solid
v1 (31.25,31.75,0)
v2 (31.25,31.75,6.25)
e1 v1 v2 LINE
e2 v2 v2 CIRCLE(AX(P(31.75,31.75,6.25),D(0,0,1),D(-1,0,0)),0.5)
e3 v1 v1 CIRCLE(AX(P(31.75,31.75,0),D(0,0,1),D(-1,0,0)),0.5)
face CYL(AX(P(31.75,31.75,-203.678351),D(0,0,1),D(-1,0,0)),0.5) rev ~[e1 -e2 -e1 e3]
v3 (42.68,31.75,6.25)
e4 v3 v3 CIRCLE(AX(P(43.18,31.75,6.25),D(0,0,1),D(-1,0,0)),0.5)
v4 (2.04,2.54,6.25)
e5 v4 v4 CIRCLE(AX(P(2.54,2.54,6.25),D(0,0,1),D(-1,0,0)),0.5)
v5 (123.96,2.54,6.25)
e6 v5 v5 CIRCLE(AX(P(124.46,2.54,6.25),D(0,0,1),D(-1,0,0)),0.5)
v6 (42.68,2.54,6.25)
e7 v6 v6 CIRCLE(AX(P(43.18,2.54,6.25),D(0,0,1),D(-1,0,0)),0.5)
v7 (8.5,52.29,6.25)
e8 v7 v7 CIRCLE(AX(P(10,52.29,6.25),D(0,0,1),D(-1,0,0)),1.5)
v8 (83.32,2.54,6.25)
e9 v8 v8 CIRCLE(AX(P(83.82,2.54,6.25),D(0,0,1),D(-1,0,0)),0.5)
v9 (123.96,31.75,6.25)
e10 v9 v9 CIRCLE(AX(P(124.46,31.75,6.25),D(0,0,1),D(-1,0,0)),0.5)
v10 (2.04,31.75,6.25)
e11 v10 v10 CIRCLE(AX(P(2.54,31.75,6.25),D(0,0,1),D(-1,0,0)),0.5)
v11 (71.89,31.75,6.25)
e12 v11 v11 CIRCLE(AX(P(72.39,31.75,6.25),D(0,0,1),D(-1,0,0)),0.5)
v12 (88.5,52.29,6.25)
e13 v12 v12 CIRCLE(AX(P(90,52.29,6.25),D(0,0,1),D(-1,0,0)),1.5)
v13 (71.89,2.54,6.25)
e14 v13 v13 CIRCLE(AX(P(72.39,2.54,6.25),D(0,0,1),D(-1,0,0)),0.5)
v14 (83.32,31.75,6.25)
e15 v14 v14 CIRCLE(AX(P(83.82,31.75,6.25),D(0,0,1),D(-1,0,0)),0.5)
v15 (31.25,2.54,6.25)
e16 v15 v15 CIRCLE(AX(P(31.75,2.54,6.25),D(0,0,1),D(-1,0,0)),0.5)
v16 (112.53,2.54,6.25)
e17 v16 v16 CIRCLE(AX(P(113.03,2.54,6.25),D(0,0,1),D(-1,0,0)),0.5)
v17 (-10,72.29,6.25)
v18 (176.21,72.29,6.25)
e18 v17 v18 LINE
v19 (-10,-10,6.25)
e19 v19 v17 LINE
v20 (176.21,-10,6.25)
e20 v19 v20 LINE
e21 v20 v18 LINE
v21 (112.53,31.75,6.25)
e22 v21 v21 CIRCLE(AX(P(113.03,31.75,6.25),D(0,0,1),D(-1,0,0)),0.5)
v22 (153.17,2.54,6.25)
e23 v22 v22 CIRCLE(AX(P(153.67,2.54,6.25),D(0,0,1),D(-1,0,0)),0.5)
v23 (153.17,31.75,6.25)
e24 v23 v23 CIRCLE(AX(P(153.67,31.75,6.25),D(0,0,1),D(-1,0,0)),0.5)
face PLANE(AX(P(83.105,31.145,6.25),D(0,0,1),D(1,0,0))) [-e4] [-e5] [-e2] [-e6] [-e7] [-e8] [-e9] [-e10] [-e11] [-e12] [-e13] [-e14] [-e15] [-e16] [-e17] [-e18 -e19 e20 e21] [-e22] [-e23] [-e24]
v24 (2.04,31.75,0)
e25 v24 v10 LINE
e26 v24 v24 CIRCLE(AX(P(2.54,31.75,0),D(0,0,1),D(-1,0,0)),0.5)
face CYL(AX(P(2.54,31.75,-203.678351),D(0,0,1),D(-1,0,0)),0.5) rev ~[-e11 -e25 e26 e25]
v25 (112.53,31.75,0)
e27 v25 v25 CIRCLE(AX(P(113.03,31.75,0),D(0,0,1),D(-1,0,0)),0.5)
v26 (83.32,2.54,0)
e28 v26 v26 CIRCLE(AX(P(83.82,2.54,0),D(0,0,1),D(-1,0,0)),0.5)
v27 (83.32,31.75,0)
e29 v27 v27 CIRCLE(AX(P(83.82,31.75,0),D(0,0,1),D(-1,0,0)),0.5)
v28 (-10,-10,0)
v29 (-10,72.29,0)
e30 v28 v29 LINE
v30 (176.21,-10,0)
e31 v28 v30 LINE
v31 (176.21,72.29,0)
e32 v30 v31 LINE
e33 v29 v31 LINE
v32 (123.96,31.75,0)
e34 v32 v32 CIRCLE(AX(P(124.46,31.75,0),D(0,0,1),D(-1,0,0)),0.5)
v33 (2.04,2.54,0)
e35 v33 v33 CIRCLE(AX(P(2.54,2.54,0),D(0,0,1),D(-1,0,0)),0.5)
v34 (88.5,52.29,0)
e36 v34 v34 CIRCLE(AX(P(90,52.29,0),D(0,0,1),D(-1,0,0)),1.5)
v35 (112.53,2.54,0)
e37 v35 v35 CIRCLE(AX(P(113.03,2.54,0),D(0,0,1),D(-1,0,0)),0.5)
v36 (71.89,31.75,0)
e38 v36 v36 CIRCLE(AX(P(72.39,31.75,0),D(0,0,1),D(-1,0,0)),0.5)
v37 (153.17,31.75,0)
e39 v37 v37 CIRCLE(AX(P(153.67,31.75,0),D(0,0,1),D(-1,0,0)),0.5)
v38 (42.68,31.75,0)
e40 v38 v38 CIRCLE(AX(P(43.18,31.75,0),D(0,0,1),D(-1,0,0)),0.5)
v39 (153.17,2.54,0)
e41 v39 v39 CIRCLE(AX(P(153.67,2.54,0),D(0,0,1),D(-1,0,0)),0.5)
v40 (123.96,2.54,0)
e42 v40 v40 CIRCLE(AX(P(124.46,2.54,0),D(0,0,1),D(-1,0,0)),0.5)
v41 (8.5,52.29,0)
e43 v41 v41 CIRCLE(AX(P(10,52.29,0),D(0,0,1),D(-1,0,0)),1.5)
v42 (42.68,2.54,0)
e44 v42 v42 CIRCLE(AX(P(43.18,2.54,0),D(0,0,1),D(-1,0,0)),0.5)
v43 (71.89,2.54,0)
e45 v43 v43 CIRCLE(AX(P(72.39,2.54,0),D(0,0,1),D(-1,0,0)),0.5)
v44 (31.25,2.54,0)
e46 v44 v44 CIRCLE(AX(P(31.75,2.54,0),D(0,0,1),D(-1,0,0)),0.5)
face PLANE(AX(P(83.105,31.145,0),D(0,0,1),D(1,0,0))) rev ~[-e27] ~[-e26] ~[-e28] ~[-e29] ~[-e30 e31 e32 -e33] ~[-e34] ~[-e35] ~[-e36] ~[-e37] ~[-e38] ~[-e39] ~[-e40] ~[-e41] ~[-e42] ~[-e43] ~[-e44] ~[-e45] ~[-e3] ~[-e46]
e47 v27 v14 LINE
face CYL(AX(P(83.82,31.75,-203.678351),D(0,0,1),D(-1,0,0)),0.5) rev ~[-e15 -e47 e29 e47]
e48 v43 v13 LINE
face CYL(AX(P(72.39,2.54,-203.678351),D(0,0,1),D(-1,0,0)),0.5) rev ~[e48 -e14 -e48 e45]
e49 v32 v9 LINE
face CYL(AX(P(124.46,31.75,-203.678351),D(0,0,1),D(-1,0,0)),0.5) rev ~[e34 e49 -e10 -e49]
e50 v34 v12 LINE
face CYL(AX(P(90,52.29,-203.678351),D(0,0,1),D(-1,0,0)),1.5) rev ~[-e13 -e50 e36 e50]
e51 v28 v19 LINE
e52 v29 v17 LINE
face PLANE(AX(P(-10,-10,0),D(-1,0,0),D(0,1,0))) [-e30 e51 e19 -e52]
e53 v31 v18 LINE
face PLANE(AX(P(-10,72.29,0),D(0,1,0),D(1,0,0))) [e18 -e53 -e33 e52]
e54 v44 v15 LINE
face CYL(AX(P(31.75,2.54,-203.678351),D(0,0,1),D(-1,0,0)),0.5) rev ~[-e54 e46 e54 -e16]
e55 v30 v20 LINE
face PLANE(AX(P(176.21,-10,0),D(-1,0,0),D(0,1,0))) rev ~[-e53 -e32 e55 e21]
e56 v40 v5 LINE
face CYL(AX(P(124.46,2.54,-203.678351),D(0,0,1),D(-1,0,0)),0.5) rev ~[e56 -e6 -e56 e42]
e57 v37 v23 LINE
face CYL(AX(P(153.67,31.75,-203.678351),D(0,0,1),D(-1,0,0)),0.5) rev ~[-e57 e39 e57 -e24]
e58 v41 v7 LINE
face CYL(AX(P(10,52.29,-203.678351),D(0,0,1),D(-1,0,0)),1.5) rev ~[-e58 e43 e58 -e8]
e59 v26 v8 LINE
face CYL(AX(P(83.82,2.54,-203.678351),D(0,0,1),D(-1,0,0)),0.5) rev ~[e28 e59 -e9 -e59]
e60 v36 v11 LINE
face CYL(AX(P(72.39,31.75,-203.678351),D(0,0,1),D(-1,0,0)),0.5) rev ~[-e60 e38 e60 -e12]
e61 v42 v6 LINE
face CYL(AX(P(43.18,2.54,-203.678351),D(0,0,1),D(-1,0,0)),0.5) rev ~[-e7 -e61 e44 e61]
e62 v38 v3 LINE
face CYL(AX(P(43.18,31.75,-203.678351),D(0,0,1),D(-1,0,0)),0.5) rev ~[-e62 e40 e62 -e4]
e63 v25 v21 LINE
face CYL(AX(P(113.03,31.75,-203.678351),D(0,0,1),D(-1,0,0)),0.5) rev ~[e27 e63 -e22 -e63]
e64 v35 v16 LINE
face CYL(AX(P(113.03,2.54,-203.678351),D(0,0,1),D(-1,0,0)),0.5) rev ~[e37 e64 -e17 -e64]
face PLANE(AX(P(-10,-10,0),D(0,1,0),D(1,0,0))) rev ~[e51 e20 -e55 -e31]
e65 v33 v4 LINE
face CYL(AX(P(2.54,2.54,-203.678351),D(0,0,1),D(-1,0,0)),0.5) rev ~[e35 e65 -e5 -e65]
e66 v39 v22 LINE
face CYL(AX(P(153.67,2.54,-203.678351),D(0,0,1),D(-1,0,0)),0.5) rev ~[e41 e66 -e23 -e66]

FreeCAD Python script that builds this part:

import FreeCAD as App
import Part
import Sketcher
from FreeCAD import Vector
Q = App.Units.Quantity


def add_polygon(sketch, points):
    """Adds a closed chain of lines whose ends are joined by coincident constraints."""
    first, n = sketch.GeometryCount, len(points)
    for a, b in zip(points, points[1:] + points[:1]):
        sketch.addGeometry(Part.LineSegment(App.Vector(*a, 0), App.Vector(*b, 0)), False)
    for i in range(n):
        sketch.addConstraint(Sketcher.Constraint("Coincident", first + i, 2, first + (i + 1) % n, 1))

doc = App.newDocument("Part")
body = doc.addObject("PartDesign::Body", "Body")

sketch1 = body.newObject("Sketcher::SketchObject", "Sketch")
sketch1.AttachmentSupport = (doc.getObject("XY_Plane"), [""])
sketch1.MapMode = "FlatFace"
add_polygon(sketch1, [(-10, 72), (-10, -10), (176, -10), (176, 72)])
sketch1.addConstraint([
    Sketcher.Constraint("Vertical", 0),
    Sketcher.Constraint("Horizontal", 1),
    Sketcher.Constraint("Vertical", 2),
    Sketcher.Constraint("Horizontal", 3),
    Sketcher.Constraint("DistanceX", 0, 2, -1, 1, Q("10 mm")),
    Sketcher.Constraint("DistanceY", 0, 2, -1, 1, Q("10 mm")),
    Sketcher.Constraint("DistanceX", 1, 1, 1, 2, Q("186.21 mm")),
    Sketcher.Constraint("DistanceY", 0, 2, 0, 1, Q("82.29 mm")),
])
pad1 = body.newObject("PartDesign::Pad", "Pad")
pad1.Profile = sketch1
pad1.Length = 6.25

sketch2 = body.newObject("Sketcher::SketchObject", "Sketch001")
sketch2.AttachmentSupport = (doc.getObject("XY_Plane"), [""])
sketch2.MapMode = "FlatFace"
sketch2.addGeometry([
    Part.Circle(Vector(2.5, 2.5, 0), Vector(0, 0, 1), 0.5),
    Part.Circle(Vector(2.5, 31.8, 0), Vector(0, 0, 1), 0.5),
    Part.Circle(Vector(31.8, 31.8, 0), Vector(0, 0, 1), 0.5),
    Part.Circle(Vector(31.8, 2.5, 0), Vector(0, 0, 1), 0.5),
    Part.Circle(Vector(43.2, 2.5, 0), Vector(0, 0, 1), 0.5),
    Part.Circle(Vector(43.2, 31.8, 0), Vector(0, 0, 1), 0.5),
    Part.Circle(Vector(72.4, 31.8, 0), Vector(0, 0, 1), 0.5),
    Part.Circle(Vector(72.4, 2.5, 0), Vector(0, 0, 1), 0.5),
    Part.Circle(Vector(83.8, 2.5, 0), Vector(0, 0, 1), 0.5),
    Part.Circle(Vector(83.8, 31.8, 0), Vector(0, 0, 1), 0.5),
    Part.Circle(Vector(113, 31.8, 0), Vector(0, 0, 1), 0.5),
    Part.Circle(Vector(113, 2.5, 0), Vector(0, 0, 1), 0.5),
    Part.Circle(Vector(124.5, 2.5, 0), Vector(0, 0, 1), 0.5),
    Part.Circle(Vector(124.5, 31.8, 0), Vector(0, 0, 1), 0.5),
    Part.Circle(Vector(153.7, 31.8, 0), Vector(0, 0, 1), 0.5),
    Part.Circle(Vector(153.7, 2.5, 0), Vector(0, 0, 1), 0.5),
], False)
sketch2.addConstraint([
    Sketcher.Constraint("Equal", 0, 1),
    Sketcher.Constraint("Equal", 1, 2),
    Sketcher.Constraint("Equal", 2, 3),
    Sketcher.Constraint("Equal", 3, 4),
    Sketcher.Constraint("Equal", 4, 5),
    Sketcher.Constraint("Equal", 5, 6),
    Sketcher.Constraint("Equal", 6, 7),
    Sketcher.Constraint("Equal", 7, 8),
    Sketcher.Constraint("Equal", 8, 9),
    Sketcher.Constraint("Equal", 9, 10),
    Sketcher.Constraint("Equal", 10, 11),
    Sketcher.Constraint("Equal", 11, 12),
    Sketcher.Constraint("Equal", 12, 13),
    Sketcher.Constraint("Equal", 13, 14),
    Sketcher.Constraint("Equal", 14, 15),
    Sketcher.Constraint("Horizontal", 1, 3, 2, 3),
    Sketcher.Constraint("Horizontal", 0, 3, 3, 3),
    Sketcher.Constraint("Horizontal", 3, 3, 4, 3),
    Sketcher.Constraint("Horizontal", 2, 3, 5, 3),
    Sketcher.Constraint("Horizontal", 5, 3, 6, 3),
    Sketcher.Constraint("Horizontal", 4, 3, 7, 3),
    Sketcher.Constraint("Horizontal", 7, 3, 8, 3),
    Sketcher.Constraint("Horizontal", 6, 3, 9, 3),
    Sketcher.Constraint("Horizontal", 9, 3, 10, 3),
    Sketcher.Constraint("Horizontal", 8, 3, 11, 3),
    Sketcher.Constraint("Horizontal", 11, 3, 12, 3),
    Sketcher.Constraint("Horizontal", 10, 3, 13, 3),
    Sketcher.Constraint("Horizontal", 13, 3, 14, 3),
    Sketcher.Constraint("Horizontal", 12, 3, 15, 3),
    Sketcher.Constraint("Vertical", 0, 3, 1, 3),
    Sketcher.Constraint("Vertical", 2, 3, 3, 3),
    Sketcher.Constraint("Vertical", 4, 3, 5, 3),
    Sketcher.Constraint("Vertical", 6, 3, 7, 3),
    Sketcher.Constraint("Vertical", 8, 3, 9, 3),
    Sketcher.Constraint("Vertical", 10, 3, 11, 3),
    Sketcher.Constraint("Vertical", 12, 3, 13, 3),
    Sketcher.Constraint("Vertical", 14, 3, 15, 3),
    Sketcher.Constraint("Diameter", 0, Q("1 mm")),
    Sketcher.Constraint("DistanceX", -1, 1, 0, 3, Q("2.54 mm")),
    Sketcher.Constraint("DistanceY", -1, 1, 0, 3, Q("2.54 mm")),
    Sketcher.Constraint("DistanceY", -1, 1, 1, 3, Q("31.75 mm")),
    Sketcher.Constraint("DistanceX", -1, 1, 2, 3, Q("31.75 mm")),
    Sketcher.Constraint("DistanceX", -1, 1, 4, 3, Q("43.18 mm")),
    Sketcher.Constraint("DistanceX", -1, 1, 6, 3, Q("72.39 mm")),
    Sketcher.Constraint("DistanceX", -1, 1, 8, 3, Q("83.82 mm")),
    Sketcher.Constraint("DistanceX", -1, 1, 10, 3, Q("113.03 mm")),
    Sketcher.Constraint("DistanceX", -1, 1, 12, 3, Q("124.46 mm")),
    Sketcher.Constraint("DistanceX", -1, 1, 14, 3, Q("153.67 mm")),
])
doc.recompute()
hole = body.newObject("PartDesign::Hole", "Hole")
hole.Profile = sketch2
hole.ThreadType = "None"
hole.Diameter = 1
hole.DepthType = "ThroughAll"
hole.Reversed = True

sketch3 = body.newObject("Sketcher::SketchObject", "Sketch002")
sketch3.AttachmentSupport = (doc.getObject("XY_Plane"), [""])
sketch3.MapMode = "FlatFace"
sketch3.addGeometry([
    Part.Circle(Vector(10, 52.3, 0), Vector(0, 0, 1), 1.5),
    Part.Circle(Vector(90, 52.3, 0), Vector(0, 0, 1), 1.5),
], False)
sketch3.addConstraint([
    Sketcher.Constraint("Equal", 0, 1),
    Sketcher.Constraint("Horizontal", 0, 3, 1, 3),
    Sketcher.Constraint("Diameter", 0, Q("3 mm")),
    Sketcher.Constraint("DistanceX", -1, 1, 0, 3, Q("10 mm")),
    Sketcher.Constraint("DistanceX", -1, 1, 1, 3, Q("90 mm")),
    Sketcher.Constraint("DistanceY", -1, 1, 0, 3, Q("52.29 mm")),
])
doc.recompute()
hole2 = body.newObject("PartDesign::Hole", "Hole001")
hole2.Profile = sketch3
hole2.ThreadType = "None"
hole2.Diameter = 3
hole2.DepthType = "ThroughAll"
hole2.Reversed = True

doc.recompute()
